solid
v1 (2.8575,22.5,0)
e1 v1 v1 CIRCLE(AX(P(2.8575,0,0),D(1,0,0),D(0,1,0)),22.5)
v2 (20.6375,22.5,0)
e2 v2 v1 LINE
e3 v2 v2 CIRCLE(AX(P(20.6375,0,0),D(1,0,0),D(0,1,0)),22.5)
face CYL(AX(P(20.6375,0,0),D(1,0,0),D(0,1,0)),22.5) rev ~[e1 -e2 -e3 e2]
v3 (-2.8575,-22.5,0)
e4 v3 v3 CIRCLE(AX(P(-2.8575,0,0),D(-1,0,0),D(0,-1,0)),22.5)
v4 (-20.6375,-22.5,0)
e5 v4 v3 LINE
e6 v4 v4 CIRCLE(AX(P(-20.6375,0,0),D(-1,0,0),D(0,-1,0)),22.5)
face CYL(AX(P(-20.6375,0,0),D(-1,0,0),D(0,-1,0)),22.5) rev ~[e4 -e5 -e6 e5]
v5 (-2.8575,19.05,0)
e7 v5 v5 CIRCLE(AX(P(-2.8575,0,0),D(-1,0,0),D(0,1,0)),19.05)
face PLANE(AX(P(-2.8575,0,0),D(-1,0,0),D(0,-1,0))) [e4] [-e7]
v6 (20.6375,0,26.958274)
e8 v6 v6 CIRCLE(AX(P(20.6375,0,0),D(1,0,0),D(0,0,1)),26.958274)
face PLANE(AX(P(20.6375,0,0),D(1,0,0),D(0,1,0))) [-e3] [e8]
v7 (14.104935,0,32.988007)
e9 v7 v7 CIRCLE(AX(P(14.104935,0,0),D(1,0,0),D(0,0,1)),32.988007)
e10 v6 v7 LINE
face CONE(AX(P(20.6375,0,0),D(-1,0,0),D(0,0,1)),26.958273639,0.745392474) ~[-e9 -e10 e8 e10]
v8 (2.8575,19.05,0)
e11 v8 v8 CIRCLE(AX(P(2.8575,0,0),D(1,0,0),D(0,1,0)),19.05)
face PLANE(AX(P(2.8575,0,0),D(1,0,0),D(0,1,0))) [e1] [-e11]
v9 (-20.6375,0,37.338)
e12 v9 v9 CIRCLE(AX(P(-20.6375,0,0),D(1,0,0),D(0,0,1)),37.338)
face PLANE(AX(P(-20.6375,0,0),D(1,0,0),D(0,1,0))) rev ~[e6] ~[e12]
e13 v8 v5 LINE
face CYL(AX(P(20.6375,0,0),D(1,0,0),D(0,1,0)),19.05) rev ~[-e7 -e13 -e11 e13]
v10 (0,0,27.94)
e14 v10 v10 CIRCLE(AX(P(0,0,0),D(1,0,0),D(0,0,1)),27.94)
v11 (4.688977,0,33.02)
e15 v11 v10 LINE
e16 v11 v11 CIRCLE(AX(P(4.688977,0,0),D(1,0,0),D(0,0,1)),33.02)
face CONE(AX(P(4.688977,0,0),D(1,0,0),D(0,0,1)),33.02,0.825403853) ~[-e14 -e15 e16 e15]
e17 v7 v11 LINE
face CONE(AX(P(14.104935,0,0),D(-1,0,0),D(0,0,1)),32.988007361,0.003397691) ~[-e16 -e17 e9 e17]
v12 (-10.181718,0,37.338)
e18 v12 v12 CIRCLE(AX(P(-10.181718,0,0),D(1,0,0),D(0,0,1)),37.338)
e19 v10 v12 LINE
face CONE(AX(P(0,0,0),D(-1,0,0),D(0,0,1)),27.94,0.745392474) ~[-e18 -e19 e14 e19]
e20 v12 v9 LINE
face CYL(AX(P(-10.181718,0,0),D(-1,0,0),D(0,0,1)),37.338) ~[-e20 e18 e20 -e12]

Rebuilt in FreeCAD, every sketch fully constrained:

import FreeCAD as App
import Part
import Sketcher
from FreeCAD import Vector
Q = App.Units.Quantity

doc = App.newDocument("Part")
body = doc.addObject("PartDesign::Body", "Body")

# Sketch on XZ plane
sketch1 = body.newObject("Sketcher::SketchObject", "Sketch")
sketch1.AttachmentSupport = (doc.getObject("XZ_Plane"), [""])
sketch1.MapMode = "FlatFace"
sketch1.addGeometry(Part.LineSegment(Vector(-20.6, 25.4, 0), Vector(20.6, 25.4, 0)), False)
sketch1.addGeometry(Part.LineSegment(Vector(20.6, 25.4, 0), Vector(20.6, 27, 0)), False)
sketch1.addGeometry(Part.LineSegment(Vector(20.6, 27, 0), Vector(14.1, 33, 0)), False)
sketch1.addGeometry(Part.LineSegment(Vector(14.1, 33, 0), Vector(4.7, 33, 0)), False)
sketch1.addGeometry(Part.LineSegment(Vector(4.7, 33, 0), Vector(0, 27.9, 0)), False)
sketch1.addGeometry(Part.LineSegment(Vector(0, 27.9, 0), Vector(-10.2, 37.3, 0)), False)
sketch1.addGeometry(Part.LineSegment(Vector(-10.2, 37.3, 0), Vector(-20.6, 37.3, 0)), False)
sketch1.addGeometry(Part.LineSegment(Vector(-20.6, 37.3, 0), Vector(-20.6, 25.4, 0)), False)
sketch1.addConstraint(Sketcher.Constraint("Coincident", 0, 2, 1, 1))
sketch1.addConstraint(Sketcher.Constraint("Coincident", 1, 2, 2, 1))
sketch1.addConstraint(Sketcher.Constraint("Coincident", 2, 2, 3, 1))
sketch1.addConstraint(Sketcher.Constraint("Coincident", 3, 2, 4, 1))
sketch1.addConstraint(Sketcher.Constraint("Coincident", 4, 2, 5, 1))
sketch1.addConstraint(Sketcher.Constraint("Coincident", 5, 2, 6, 1))
sketch1.addConstraint(Sketcher.Constraint("Coincident", 6, 2, 7, 1))
sketch1.addConstraint(Sketcher.Constraint("Coincident", 7, 2, 0, 1))
sketch1.addConstraint(Sketcher.Constraint("Horizontal", 0))
sketch1.addConstraint(Sketcher.Constraint("Vertical", 1))
sketch1.addConstraint(Sketcher.Constraint("Horizontal", 6))
sketch1.addConstraint(Sketcher.Constraint("Vertical", 7))
sketch1.addConstraint(Sketcher.Constraint("PointOnObject", 4, 2, -2))
sketch1.addConstraint(Sketcher.Constraint("Perpendicular", 2, 4))
sketch1.addConstraint(Sketcher.Constraint("Perpendicular", 4, 5))
sketch1.addConstraint(Sketcher.Constraint("DistanceY", -1, 1, 0, 2, Q("1 in")))
sketch1.addConstraint(Sketcher.Constraint("DistanceY", 7, 2, 7, 1, Q("0.47 in")))
sketch1.addConstraint(Sketcher.Constraint("DistanceY", -1, 1, 3, 2, Q("1.3 in")))
sketch1.addConstraint(Sketcher.Constraint("DistanceY", -1, 1, 4, 2, Q("1.1 in")))
sketch1.addConstraint(Sketcher.Constraint("Distance", 2, Q("0.35 in")))
sketch1.addConstraint(Sketcher.Constraint("DistanceX", 0, 1, 0, 2, Q("1.625 in")))
sketch1.addConstraint(Sketcher.Constraint("DistanceX", -1, 1, 0, 2, Q("0.8125 in")))
sketch1.addConstraint(Sketcher.Constraint("DistanceX", 6, 2, 6, 1, 10.455782))
sketch1.addConstraint(Sketcher.Constraint("DistanceY", 1, 1, 1, 2, 1.558274))
revolution = body.newObject("PartDesign::Revolution", "Revolution")
revolution.Profile = sketch1
revolution.ReferenceAxis = (sketch1, ["H_Axis"])
revolution.Angle = 360

# Sketch on YZ plane
sketch2 = body.newObject("Sketcher::SketchObject", "Sketch001")
sketch2.AttachmentSupport = (doc.getObject("YZ_Plane"), [""])
sketch2.MapMode = "FlatFace"
sketch2.AttachmentOffset = App.Placement(Vector(0, 0, 0.8125 * 25.4), App.Rotation())
sketch2.addGeometry(Part.Circle(Vector(0, 0, 0), Vector(0, 0, 1), 25), False)
sketch2.addGeometry(Part.Circle(Vector(0, 0, 0), Vector(0, 0, 1), 25), False)
sketch2.addConstraint(Sketcher.Constraint("Coincident", 0, 3, -1, 1))
sketch2.addConstraint(Sketcher.Constraint("Coincident", 1, 3, -1, 1))
sketch2.addConstraint(Sketcher.Constraint("Diameter", 0, Q("2 in")))
sketch2.addConstraint(Sketcher.Constraint("Diameter", 1, 49.612172))
pad1 = body.newObject("PartDesign::Pad", "Pad")
pad1.Profile = sketch2
pad1.Length = Q("1.625 in")
pad1.Reversed = True

# Sketch on YZ plane
sketch3 = body.newObject("Sketcher::SketchObject", "Sketch002")
sketch3.AttachmentSupport = (doc.getObject("YZ_Plane"), [""])
sketch3.MapMode = "FlatFace"
sketch3.AttachmentOffset = App.Placement(Vector(0, 0, 0.8125 * 25.4), App.Rotation())
sketch3.addGeometry(Part.Circle(Vector(0, 0, 0), Vector(0, 0, 1), 19), False)
sketch3.addConstraint(Sketcher.Constraint("Coincident", 0, 3, -1, 1))
sketch3.addConstraint(Sketcher.Constraint("Diameter", 0, Q("1.5 in")))
pocket1 = body.newObject("PartDesign::Pocket", "Pocket")
pocket1.Profile = sketch3
pocket1.Type = "ThroughAll"

# Sketch on YZ plane
sketch4 = body.newObject("Sketcher::SketchObject", "Sketch003")
sketch4.AttachmentSupport = (doc.getObject("YZ_Plane"), [""])
sketch4.MapMode = "FlatFace"
sketch4.AttachmentOffset = App.Placement(Vector(0, 0, 0.8125 * 25.4), App.Rotation())
sketch4.addGeometry(Part.Circle(Vector(0, 0, 0), Vector(0, 0, 1), 25), False)
sketch4.addConstraint(Sketcher.Constraint("Coincident", 0, 3, -1, 1))
sketch4.addConstraint(Sketcher.Constraint("Diameter", 0, 49.612172))
pad2 = body.newObject("PartDesign::Pad", "Pad001")
pad2.Profile = sketch4
pad2.Length = Q("1.625 in")
pad2.Reversed = True

# Sketch on YZ plane
sketch5 = body.newObject("Sketcher::SketchObject", "Sketch004")
sketch5.AttachmentSupport = (doc.getObject("YZ_Plane"), [""])
sketch5.MapMode = "FlatFace"
sketch5.AttachmentOffset = App.Placement(Vector(0, 0, 0.8125 * 25.4), App.Rotation())
sketch5.addGeometry(Part.Circle(Vector(0, 0, 0), Vector(0, 0, 1), 19), False)
sketch5.addConstraint(Sketcher.Constraint("Coincident", 0, 3, -1, 1))
sketch5.addConstraint(Sketcher.Constraint("Diameter", 0, Q("1.5 in")))
pocket2 = body.newObject("PartDesign::Pocket", "Pocket001")
pocket2.Profile = sketch5
pocket2.Type = "ThroughAll"

# Sketch on YZ plane
sketch6 = body.newObject("Sketcher::SketchObject", "Sketch005")
sketch6.AttachmentSupport = (doc.getObject("YZ_Plane"), [""])
sketch6.MapMode = "FlatFace"
sketch6.AttachmentOffset = App.Placement(Vector(0, 0, 0.8125 * 25.4), App.Rotation())
sketch6.addGeometry(Part.Circle(Vector(0, 0, 0), Vector(0, 0, 1), 22), False)
sketch6.addGeometry(Part.Circle(Vector(0, 0, 0), Vector(0, 0, 1), 19), False)
sketch6.addConstraint(Sketcher.Constraint("Coincident", 0, 3, -1, 1))
sketch6.addConstraint(Sketcher.Constraint("Coincident", 1, 3, -1, 1))
sketch6.addConstraint(Sketcher.Constraint("Diameter", 1, Q("1.5 in")))
sketch6.addConstraint(Sketcher.Constraint("Diameter", 0, 45.0))
pocket3 = body.newObject("PartDesign::Pocket", "Pocket002")
pocket3.Profile = sketch6
pocket3.Length = Q("0.7 in")

# Sketch on YZ plane
sketch7 = body.newObject("Sketcher::SketchObject", "Sketch006")
sketch7.AttachmentSupport = (doc.getObject("YZ_Plane"), [""])
sketch7.MapMode = "FlatFace"
sketch7.AttachmentOffset = App.Placement(Vector(0, 0, -0.8125 * 25.4), App.Rotation())
sketch7.addGeometry(Part.Circle(Vector(0, 0, 0), Vector(0, 0, 1), 22), False)
sketch7.addGeometry(Part.Circle(Vector(0, 0, 0), Vector(0, 0, 1), 19), False)
sketch7.addConstraint(Sketcher.Constraint("Coincident", 0, 3, -1, 1))
sketch7.addConstraint(Sketcher.Constraint("Coincident", 1, 3, -1, 1))
sketch7.addConstraint(Sketcher.Constraint("Diameter", 1, Q("1.5 in")))
sketch7.addConstraint(Sketcher.Constraint("Diameter", 0, 45.0))
pocket4 = body.newObject("PartDesign::Pocket", "Pocket003")
pocket4.Profile = sketch7
pocket4.Length = Q("0.7 in")
pocket4.Reversed = True

doc.recompute()
